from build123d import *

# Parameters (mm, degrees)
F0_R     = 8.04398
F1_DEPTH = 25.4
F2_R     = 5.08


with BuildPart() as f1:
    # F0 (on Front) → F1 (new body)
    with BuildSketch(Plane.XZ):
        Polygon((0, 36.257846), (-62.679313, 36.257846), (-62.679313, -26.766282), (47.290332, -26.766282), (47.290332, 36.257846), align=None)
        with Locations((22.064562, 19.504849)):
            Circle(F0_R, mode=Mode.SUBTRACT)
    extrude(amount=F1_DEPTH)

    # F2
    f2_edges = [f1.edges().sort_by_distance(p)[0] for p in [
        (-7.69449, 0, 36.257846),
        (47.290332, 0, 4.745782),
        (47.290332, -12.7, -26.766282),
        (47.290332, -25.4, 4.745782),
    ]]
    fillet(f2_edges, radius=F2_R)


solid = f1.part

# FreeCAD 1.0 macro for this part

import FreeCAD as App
import Part
import Sketcher
from FreeCAD import Vector
Q = App.Units.Quantity


def edges_at(feature, points):
    """Names of the edges that pass closest to the given points."""
    edges = feature.Shape.Edges
    near = lambda p: min(range(len(edges)), key=lambda i: edges[i].distToShape(Part.Vertex(*p))[0])
    return sorted({f"Edge{near(p) + 1}" for p in points})


def add_polygon(sketch, points):
    """Adds a closed chain of lines whose ends are joined by coincident constraints."""
    first, n = sketch.GeometryCount, len(points)
    for a, b in zip(points, points[1:] + points[:1]):
        sketch.addGeometry(Part.LineSegment(App.Vector(*a, 0), App.Vector(*b, 0)), False)
    for i in range(n):
        sketch.addConstraint(Sketcher.Constraint("Coincident", first + i, 2, first + (i + 1) % n, 1))

doc = App.newDocument("Part")
body = doc.addObject("PartDesign::Body", "Body")

sketch1 = body.newObject("Sketcher::SketchObject", "Sketch")
sketch1.AttachmentSupport = (doc.getObject("XZ_Plane"), [""])
sketch1.MapMode = "FlatFace"
add_polygon(sketch1, [(-63, 36), (-63, -27), (47, -27), (47, 36)])
sketch1.addGeometry(Part.Circle(Vector(22, 20, 0), Vector(0, 0, 1), 8), False)
sketch1.addConstraint(Sketcher.Constraint("Vertical", 0))
sketch1.addConstraint(Sketcher.Constraint("Horizontal", 1))
sketch1.addConstraint(Sketcher.Constraint("Vertical", 2))
sketch1.addConstraint(Sketcher.Constraint("Horizontal", 3))
sketch1.addConstraint(Sketcher.Constraint("Diameter", 4, Q("16.08796 mm")))
sketch1.addConstraint(Sketcher.Constraint("DistanceY", 0, 2, 0, 1, Q("63.024128 mm")))
sketch1.addConstraint(Sketcher.Constraint("DistanceX", 1, 1, 1, 2, Q("109.969645 mm")))
sketch1.addConstraint(Sketcher.Constraint("DistanceX", -1, 1, 4, 3, Q("22.064562 mm")))
sketch1.addConstraint(Sketcher.Constraint("DistanceY", -1, 1, 4, 3, Q("19.504849 mm")))
sketch1.addConstraint(Sketcher.Constraint("DistanceY", 0, 2, 4, 3, Q("46.271131 mm")))
sketch1.addConstraint(Sketcher.Constraint("DistanceX", 4, 3, 1, 2, Q("25.22577 mm")))
pad1 = body.newObject("PartDesign::Pad", "Pad")
pad1.Profile = sketch1
pad1.Length = Q("1 in")
doc.recompute()

fillet = body.newObject("PartDesign::Fillet", "Fillet")
fillet.Base = (pad1, edges_at(pad1, [
    (-7.694, 0, 36.258),
    (47.29, 0, 4.746),
    (47.29, -12.7, -26.766),
    (47.29, -25.4, 4.746),
]))
fillet.Radius = Q("0.2 in")

doc.recompute()
